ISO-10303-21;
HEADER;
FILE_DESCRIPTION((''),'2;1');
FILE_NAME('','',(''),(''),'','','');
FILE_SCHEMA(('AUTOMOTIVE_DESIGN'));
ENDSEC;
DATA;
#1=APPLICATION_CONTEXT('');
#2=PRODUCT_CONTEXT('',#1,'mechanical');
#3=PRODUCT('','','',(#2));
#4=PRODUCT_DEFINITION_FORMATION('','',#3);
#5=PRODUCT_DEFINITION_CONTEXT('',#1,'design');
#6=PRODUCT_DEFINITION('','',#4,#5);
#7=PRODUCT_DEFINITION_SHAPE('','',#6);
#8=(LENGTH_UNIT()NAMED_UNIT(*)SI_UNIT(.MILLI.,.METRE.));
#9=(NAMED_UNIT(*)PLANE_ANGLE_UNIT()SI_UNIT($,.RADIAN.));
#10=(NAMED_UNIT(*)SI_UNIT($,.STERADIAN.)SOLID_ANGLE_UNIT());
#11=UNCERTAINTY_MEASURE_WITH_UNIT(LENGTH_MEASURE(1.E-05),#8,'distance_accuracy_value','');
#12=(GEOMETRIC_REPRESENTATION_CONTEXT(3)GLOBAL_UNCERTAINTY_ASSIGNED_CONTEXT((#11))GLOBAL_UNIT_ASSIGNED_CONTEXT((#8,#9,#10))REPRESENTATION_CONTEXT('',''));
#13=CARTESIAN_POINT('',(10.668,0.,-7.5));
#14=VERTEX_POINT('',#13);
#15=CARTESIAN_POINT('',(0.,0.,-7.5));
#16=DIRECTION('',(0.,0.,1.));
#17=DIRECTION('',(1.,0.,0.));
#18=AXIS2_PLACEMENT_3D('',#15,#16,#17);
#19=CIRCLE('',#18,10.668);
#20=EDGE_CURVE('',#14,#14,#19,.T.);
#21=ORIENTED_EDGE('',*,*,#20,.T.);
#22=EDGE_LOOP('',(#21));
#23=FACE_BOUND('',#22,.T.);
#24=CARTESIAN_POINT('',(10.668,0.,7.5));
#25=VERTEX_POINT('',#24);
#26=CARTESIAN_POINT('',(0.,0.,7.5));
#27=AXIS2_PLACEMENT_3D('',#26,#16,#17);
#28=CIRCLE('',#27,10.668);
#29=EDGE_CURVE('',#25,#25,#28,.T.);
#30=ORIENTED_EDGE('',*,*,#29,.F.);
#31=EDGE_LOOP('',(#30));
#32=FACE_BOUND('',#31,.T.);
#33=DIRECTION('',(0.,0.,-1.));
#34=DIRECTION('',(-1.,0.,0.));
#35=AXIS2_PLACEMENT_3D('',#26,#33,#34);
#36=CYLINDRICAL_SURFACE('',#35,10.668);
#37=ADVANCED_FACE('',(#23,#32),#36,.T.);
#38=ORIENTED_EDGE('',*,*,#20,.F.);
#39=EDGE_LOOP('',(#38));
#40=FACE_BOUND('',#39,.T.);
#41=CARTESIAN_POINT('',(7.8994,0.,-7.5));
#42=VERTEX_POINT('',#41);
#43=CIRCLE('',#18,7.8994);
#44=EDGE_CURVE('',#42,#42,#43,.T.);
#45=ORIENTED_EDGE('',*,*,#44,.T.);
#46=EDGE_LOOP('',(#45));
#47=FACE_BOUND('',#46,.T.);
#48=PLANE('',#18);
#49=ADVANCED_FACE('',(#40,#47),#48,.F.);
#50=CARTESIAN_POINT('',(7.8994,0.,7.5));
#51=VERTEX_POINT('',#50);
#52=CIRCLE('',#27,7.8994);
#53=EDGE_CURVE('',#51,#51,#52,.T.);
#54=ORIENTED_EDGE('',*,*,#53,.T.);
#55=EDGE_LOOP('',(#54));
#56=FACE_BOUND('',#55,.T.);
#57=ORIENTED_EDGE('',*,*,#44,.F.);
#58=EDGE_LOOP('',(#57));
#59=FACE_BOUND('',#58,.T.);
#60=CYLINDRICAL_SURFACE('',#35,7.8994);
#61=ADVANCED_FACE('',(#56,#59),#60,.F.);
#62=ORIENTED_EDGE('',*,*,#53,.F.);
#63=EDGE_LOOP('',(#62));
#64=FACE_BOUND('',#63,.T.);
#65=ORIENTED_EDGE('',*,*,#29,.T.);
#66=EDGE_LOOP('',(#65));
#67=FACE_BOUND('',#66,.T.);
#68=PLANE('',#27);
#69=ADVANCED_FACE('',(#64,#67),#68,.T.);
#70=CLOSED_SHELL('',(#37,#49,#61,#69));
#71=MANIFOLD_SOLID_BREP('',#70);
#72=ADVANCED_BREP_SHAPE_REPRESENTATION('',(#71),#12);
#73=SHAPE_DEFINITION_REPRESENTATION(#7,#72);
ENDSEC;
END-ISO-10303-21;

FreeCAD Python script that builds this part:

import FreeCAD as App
import Part
import Sketcher

V = App.Vector
Q = App.Units.Quantity

doc = App.newDocument("Part")
params = doc.addObject("Spreadsheet::Sheet", "Params")
for row, (alias, value) in enumerate([
    ("sketch1_diameter", "0.84 in"),
    ("sketch1_diameter2", "0.622 in"),
    ("pad1_length", "15 mm"),
], start=1):
    params.set(f"A{row}", alias)
    params.set(f"B{row}", "=" + value)
    params.setAlias(f"B{row}", alias)

body = doc.addObject("PartDesign::Body", "Body")

# Sketch on XY plane
sketch1 = body.newObject("Sketcher::SketchObject", "Sketch")
sketch1.AttachmentSupport = (doc.getObject("XY_Plane"), [""])
sketch1.MapMode = "FlatFace"
sketch1.addGeometry([
    Part.Circle(V(0, 0, 0), V(0, 0, 1), 11),
    Part.Circle(V(0, 0, 0), V(0, 0, 1), 8),
], False)
sketch1.addConstraint([
    Sketcher.Constraint("Coincident", 0, 3, -1, 1),
    Sketcher.Constraint("Coincident", 1, 3, -1, 1),
    Sketcher.Constraint("Diameter", 0, Q("0.84 in")),
    Sketcher.Constraint("Diameter", 1, Q("0.622 in")),
])
sketch1.setExpression("Constraints[2]", "Params.sketch1_diameter")
sketch1.setExpression("Constraints[3]", "Params.sketch1_diameter2")
pad1 = body.newObject("PartDesign::Pad", "Pad")
pad1.Profile = sketch1
pad1.setExpression("Length", "Params.pad1_length")
pad1.Midplane = True

doc.recompute()
